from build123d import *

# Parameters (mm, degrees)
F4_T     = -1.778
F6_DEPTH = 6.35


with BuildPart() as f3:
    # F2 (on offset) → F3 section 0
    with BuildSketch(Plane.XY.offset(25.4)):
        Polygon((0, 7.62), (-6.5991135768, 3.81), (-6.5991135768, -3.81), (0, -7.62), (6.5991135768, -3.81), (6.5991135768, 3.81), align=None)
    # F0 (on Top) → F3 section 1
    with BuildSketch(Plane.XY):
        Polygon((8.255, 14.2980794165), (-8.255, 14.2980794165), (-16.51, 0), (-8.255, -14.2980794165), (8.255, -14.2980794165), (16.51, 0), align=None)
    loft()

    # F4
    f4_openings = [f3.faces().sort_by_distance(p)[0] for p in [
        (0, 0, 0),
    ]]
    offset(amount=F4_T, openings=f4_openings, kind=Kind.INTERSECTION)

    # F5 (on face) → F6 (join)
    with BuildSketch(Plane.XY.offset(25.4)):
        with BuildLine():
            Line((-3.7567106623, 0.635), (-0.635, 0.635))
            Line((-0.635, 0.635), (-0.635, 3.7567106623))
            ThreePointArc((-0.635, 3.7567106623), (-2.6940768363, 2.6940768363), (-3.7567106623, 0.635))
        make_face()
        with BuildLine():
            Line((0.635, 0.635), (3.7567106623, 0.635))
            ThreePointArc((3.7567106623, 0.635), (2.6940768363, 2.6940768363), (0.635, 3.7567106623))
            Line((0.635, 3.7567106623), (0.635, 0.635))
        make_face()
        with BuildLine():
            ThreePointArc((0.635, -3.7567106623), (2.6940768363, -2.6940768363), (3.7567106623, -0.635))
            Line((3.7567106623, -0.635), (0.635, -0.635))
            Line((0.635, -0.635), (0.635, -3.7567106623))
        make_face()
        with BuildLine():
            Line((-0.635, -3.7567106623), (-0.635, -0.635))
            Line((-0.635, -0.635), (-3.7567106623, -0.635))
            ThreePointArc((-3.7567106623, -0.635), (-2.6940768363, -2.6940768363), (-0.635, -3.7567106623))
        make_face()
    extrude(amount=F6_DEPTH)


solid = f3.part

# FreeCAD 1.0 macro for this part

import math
import FreeCAD as App
import Part
import Sketcher
Q = App.Units.Quantity


def faces_at(feature, points):
    """Names of the faces that lie closest to the given points."""
    faces = feature.Shape.Faces
    near = lambda p: min(range(len(faces)), key=lambda i: faces[i].distToShape(Part.Vertex(*p))[0])
    return sorted({f"Face{near(p) + 1}" for p in points})


def add_polygon(sketch, points):
    """Adds a closed chain of lines whose ends are joined by coincident constraints."""
    first, n = sketch.GeometryCount, len(points)
    for a, b in zip(points, points[1:] + points[:1]):
        sketch.addGeometry(Part.LineSegment(App.Vector(*a, 0), App.Vector(*b, 0)), False)
    for i in range(n):
        sketch.addConstraint(Sketcher.Constraint("Coincident", first + i, 2, first + (i + 1) % n, 1))

doc = App.newDocument("Part")
params = doc.addObject("Spreadsheet::Sheet", "Params")
for row, (alias, value) in enumerate([
    ("sketch1_height", "0.3 in"),
    ("sketch1_length", "0.3 in"),
    ("sketch2_width", "0.65 in"),
    ("thickness_wall", "0.07 in"),
    ("sketch3_radius", "0.15 in"),
    ("pad1_length", "0.25 in"),
], start=1):
    params.set(f"A{row}", alias)
    params.set(f"B{row}", "=" + value)
    params.setAlias(f"B{row}", alias)

body = doc.addObject("PartDesign::Body", "Body")

sketch1 = body.newObject("Sketcher::SketchObject", "Sketch")
sketch1.AttachmentSupport = (doc.getObject("XY_Plane"), [""])
sketch1.MapMode = "FlatFace"
sketch1.AttachmentOffset = App.Placement(App.Vector(0, 0, 1 * 25.4), App.Rotation())
add_polygon(sketch1, [(0, 7.62), (-6.599114, 3.81), (-6.599114, -3.81), (0, -7.62), (6.599114, -3.81), (6.599114, 3.81)])
sketch1.addConstraint([
    Sketcher.Constraint("Vertical", 1),
    Sketcher.Constraint("Vertical", 4),
    Sketcher.Constraint("Symmetric", 0, 2, 3, 2, -1, 1),
    Sketcher.Constraint("Symmetric", 2, 2, 5, 2, -1, 1),
    Sketcher.Constraint("PointOnObject", 2, 2, -2),
    Sketcher.Constraint("Parallel", 2, 5),
    Sketcher.Constraint("Horizontal", 1, 2, 3, 2),
    Sketcher.Constraint("DistanceY", 1, 2, 1, 1, Q("0.3 in")),
    Sketcher.Constraint("Angle", 0, Q("-150 deg")),
    Sketcher.Constraint("Distance", 0, Q("0.3 in")),
])
sketch1.setExpression("Constraints[13]", "Params.sketch1_height")
sketch1.setExpression("Constraints[15]", "Params.sketch1_length")

sketch2 = body.newObject("Sketcher::SketchObject", "Sketch001")
sketch2.AttachmentSupport = (doc.getObject("XY_Plane"), [""])
sketch2.MapMode = "FlatFace"
add_polygon(sketch2, [(8.255, 14.298079), (-8.255, 14.298079), (-16.51, 0), (-8.255, -14.298079), (8.255, -14.298079), (16.51, 0)])
sketch2.addConstraint([
    Sketcher.Constraint("Horizontal", 0),
    Sketcher.Constraint("Horizontal", 3),
    Sketcher.Constraint("Symmetric", 0, 2, 3, 2, -1, 1),
    Sketcher.Constraint("Symmetric", 1, 2, 4, 2, -1, 1),
    Sketcher.Constraint("PointOnObject", 1, 2, -1),
    Sketcher.Constraint("Parallel", 2, 5),
    Sketcher.Constraint("Vertical", 0, 2, 2, 2),
    Sketcher.Constraint("Angle", 1, Q("-120 deg")),
    Sketcher.Constraint("DistanceX", 0, 2, 0, 1, Q("0.65 in")),
    Sketcher.Constraint("DistanceX", 1, 2, 4, 2, Q("1.3 in")),
])
sketch2.setExpression("Constraints[14]", "Params.sketch2_width")

additiveloft = body.newObject("PartDesign::AdditiveLoft", "AdditiveLoft")
additiveloft.Profile = sketch1
additiveloft.Sections = [sketch2]
doc.recompute()

thickness = body.newObject("PartDesign::Thickness", "Thickness")
thickness.Base = (additiveloft, faces_at(additiveloft, [(0, 0, 0)]))
thickness.setExpression("Value", "Params.thickness_wall")
thickness.Reversed = True
thickness.Join = "Intersection"

sketch3 = body.newObject("Sketcher::SketchObject", "Sketch002")
sketch3.AttachmentSupport = (doc.getObject("XY_Plane"), [""])
sketch3.MapMode = "FlatFace"
sketch3.AttachmentOffset = App.Placement(App.Vector(0, 0, 1 * 25.4), App.Rotation())
sketch3.addGeometry([
    Part.LineSegment(App.Vector(-3.756711, 0.635, 0), App.Vector(-0.635, 0.635, 0)),
    Part.LineSegment(App.Vector(-0.635, 0.635, 0), App.Vector(-0.635, 3.756711, 0)),
    Part.ArcOfCircle(Part.Circle(App.Vector(0, 0, 0), App.Vector(0, 0, 1), 3.81), math.radians(99.594068), math.radians(170.405932)),
    Part.LineSegment(App.Vector(0.635, 0.635, 0), App.Vector(3.756711, 0.635, 0)),
    Part.ArcOfCircle(Part.Circle(App.Vector(0, 0, 0), App.Vector(0, 0, 1), 3.81), math.radians(9.594068), math.radians(80.405932)),
    Part.LineSegment(App.Vector(0.635, 3.756711, 0), App.Vector(0.635, 0.635, 0)),
    Part.ArcOfCircle(Part.Circle(App.Vector(0, 0, 0), App.Vector(0, 0, 1), 3.81), math.radians(-80.405932), math.radians(-9.594068)),
    Part.LineSegment(App.Vector(3.756711, -0.635, 0), App.Vector(0.635, -0.635, 0)),
    Part.LineSegment(App.Vector(0.635, -0.635, 0), App.Vector(0.635, -3.756711, 0)),
    Part.LineSegment(App.Vector(-0.635, -3.756711, 0), App.Vector(-0.635, -0.635, 0)),
    Part.LineSegment(App.Vector(-0.635, -0.635, 0), App.Vector(-3.756711, -0.635, 0)),
    Part.ArcOfCircle(Part.Circle(App.Vector(0, 0, 0), App.Vector(0, 0, 1), 3.81), math.radians(-170.405932), math.radians(-99.594068)),
], False)
sketch3.addConstraint([
    Sketcher.Constraint("Coincident", 0, 2, 1, 1),
    Sketcher.Constraint("Coincident", 1, 2, 2, 1),
    Sketcher.Constraint("Coincident", 2, 2, 0, 1),
    Sketcher.Constraint("Coincident", 3, 2, 4, 1),
    Sketcher.Constraint("Coincident", 4, 2, 5, 1),
    Sketcher.Constraint("Coincident", 5, 2, 3, 1),
    Sketcher.Constraint("Coincident", 6, 2, 7, 1),
    Sketcher.Constraint("Coincident", 7, 2, 8, 1),
    Sketcher.Constraint("Coincident", 8, 2, 6, 1),
    Sketcher.Constraint("Coincident", 9, 2, 10, 1),
    Sketcher.Constraint("Coincident", 10, 2, 11, 1),
    Sketcher.Constraint("Coincident", 11, 2, 9, 1),
    Sketcher.Constraint("Horizontal", 0),
    Sketcher.Constraint("Vertical", 1),
    Sketcher.Constraint("Horizontal", 3),
    Sketcher.Constraint("Vertical", 5),
    Sketcher.Constraint("Horizontal", 7),
    Sketcher.Constraint("Vertical", 8),
    Sketcher.Constraint("Vertical", 9),
    Sketcher.Constraint("Horizontal", 10),
    Sketcher.Constraint("Coincident", 2, 3, -1, 1),
    Sketcher.Constraint("Coincident", 4, 3, -1, 1),
    Sketcher.Constraint("Coincident", 6, 3, -1, 1),
    Sketcher.Constraint("Coincident", 11, 3, -1, 1),
    Sketcher.Constraint("Equal", 2, 4),
    Sketcher.Constraint("Equal", 4, 6),
    Sketcher.Constraint("Equal", 6, 11),
    Sketcher.Constraint("Symmetric", 0, 2, 7, 2, -1, 1),
    Sketcher.Constraint("Symmetric", 5, 2, 9, 2, -1, 1),
    Sketcher.Constraint("Symmetric", 0, 2, 5, 2, -2),
    Sketcher.Constraint("Equal", 10, 1),
    Sketcher.Constraint("Radius", 2, Q("0.15 in")),
    Sketcher.Constraint("DistanceX", 1, 2, 4, 2, Q("0.05 in")),
])
sketch3.setExpression("Constraints[31]", "Params.sketch3_radius")
pad1 = body.newObject("PartDesign::Pad", "Pad")
pad1.Profile = sketch3
pad1.setExpression("Length", "Params.pad1_length")

doc.recompute()
